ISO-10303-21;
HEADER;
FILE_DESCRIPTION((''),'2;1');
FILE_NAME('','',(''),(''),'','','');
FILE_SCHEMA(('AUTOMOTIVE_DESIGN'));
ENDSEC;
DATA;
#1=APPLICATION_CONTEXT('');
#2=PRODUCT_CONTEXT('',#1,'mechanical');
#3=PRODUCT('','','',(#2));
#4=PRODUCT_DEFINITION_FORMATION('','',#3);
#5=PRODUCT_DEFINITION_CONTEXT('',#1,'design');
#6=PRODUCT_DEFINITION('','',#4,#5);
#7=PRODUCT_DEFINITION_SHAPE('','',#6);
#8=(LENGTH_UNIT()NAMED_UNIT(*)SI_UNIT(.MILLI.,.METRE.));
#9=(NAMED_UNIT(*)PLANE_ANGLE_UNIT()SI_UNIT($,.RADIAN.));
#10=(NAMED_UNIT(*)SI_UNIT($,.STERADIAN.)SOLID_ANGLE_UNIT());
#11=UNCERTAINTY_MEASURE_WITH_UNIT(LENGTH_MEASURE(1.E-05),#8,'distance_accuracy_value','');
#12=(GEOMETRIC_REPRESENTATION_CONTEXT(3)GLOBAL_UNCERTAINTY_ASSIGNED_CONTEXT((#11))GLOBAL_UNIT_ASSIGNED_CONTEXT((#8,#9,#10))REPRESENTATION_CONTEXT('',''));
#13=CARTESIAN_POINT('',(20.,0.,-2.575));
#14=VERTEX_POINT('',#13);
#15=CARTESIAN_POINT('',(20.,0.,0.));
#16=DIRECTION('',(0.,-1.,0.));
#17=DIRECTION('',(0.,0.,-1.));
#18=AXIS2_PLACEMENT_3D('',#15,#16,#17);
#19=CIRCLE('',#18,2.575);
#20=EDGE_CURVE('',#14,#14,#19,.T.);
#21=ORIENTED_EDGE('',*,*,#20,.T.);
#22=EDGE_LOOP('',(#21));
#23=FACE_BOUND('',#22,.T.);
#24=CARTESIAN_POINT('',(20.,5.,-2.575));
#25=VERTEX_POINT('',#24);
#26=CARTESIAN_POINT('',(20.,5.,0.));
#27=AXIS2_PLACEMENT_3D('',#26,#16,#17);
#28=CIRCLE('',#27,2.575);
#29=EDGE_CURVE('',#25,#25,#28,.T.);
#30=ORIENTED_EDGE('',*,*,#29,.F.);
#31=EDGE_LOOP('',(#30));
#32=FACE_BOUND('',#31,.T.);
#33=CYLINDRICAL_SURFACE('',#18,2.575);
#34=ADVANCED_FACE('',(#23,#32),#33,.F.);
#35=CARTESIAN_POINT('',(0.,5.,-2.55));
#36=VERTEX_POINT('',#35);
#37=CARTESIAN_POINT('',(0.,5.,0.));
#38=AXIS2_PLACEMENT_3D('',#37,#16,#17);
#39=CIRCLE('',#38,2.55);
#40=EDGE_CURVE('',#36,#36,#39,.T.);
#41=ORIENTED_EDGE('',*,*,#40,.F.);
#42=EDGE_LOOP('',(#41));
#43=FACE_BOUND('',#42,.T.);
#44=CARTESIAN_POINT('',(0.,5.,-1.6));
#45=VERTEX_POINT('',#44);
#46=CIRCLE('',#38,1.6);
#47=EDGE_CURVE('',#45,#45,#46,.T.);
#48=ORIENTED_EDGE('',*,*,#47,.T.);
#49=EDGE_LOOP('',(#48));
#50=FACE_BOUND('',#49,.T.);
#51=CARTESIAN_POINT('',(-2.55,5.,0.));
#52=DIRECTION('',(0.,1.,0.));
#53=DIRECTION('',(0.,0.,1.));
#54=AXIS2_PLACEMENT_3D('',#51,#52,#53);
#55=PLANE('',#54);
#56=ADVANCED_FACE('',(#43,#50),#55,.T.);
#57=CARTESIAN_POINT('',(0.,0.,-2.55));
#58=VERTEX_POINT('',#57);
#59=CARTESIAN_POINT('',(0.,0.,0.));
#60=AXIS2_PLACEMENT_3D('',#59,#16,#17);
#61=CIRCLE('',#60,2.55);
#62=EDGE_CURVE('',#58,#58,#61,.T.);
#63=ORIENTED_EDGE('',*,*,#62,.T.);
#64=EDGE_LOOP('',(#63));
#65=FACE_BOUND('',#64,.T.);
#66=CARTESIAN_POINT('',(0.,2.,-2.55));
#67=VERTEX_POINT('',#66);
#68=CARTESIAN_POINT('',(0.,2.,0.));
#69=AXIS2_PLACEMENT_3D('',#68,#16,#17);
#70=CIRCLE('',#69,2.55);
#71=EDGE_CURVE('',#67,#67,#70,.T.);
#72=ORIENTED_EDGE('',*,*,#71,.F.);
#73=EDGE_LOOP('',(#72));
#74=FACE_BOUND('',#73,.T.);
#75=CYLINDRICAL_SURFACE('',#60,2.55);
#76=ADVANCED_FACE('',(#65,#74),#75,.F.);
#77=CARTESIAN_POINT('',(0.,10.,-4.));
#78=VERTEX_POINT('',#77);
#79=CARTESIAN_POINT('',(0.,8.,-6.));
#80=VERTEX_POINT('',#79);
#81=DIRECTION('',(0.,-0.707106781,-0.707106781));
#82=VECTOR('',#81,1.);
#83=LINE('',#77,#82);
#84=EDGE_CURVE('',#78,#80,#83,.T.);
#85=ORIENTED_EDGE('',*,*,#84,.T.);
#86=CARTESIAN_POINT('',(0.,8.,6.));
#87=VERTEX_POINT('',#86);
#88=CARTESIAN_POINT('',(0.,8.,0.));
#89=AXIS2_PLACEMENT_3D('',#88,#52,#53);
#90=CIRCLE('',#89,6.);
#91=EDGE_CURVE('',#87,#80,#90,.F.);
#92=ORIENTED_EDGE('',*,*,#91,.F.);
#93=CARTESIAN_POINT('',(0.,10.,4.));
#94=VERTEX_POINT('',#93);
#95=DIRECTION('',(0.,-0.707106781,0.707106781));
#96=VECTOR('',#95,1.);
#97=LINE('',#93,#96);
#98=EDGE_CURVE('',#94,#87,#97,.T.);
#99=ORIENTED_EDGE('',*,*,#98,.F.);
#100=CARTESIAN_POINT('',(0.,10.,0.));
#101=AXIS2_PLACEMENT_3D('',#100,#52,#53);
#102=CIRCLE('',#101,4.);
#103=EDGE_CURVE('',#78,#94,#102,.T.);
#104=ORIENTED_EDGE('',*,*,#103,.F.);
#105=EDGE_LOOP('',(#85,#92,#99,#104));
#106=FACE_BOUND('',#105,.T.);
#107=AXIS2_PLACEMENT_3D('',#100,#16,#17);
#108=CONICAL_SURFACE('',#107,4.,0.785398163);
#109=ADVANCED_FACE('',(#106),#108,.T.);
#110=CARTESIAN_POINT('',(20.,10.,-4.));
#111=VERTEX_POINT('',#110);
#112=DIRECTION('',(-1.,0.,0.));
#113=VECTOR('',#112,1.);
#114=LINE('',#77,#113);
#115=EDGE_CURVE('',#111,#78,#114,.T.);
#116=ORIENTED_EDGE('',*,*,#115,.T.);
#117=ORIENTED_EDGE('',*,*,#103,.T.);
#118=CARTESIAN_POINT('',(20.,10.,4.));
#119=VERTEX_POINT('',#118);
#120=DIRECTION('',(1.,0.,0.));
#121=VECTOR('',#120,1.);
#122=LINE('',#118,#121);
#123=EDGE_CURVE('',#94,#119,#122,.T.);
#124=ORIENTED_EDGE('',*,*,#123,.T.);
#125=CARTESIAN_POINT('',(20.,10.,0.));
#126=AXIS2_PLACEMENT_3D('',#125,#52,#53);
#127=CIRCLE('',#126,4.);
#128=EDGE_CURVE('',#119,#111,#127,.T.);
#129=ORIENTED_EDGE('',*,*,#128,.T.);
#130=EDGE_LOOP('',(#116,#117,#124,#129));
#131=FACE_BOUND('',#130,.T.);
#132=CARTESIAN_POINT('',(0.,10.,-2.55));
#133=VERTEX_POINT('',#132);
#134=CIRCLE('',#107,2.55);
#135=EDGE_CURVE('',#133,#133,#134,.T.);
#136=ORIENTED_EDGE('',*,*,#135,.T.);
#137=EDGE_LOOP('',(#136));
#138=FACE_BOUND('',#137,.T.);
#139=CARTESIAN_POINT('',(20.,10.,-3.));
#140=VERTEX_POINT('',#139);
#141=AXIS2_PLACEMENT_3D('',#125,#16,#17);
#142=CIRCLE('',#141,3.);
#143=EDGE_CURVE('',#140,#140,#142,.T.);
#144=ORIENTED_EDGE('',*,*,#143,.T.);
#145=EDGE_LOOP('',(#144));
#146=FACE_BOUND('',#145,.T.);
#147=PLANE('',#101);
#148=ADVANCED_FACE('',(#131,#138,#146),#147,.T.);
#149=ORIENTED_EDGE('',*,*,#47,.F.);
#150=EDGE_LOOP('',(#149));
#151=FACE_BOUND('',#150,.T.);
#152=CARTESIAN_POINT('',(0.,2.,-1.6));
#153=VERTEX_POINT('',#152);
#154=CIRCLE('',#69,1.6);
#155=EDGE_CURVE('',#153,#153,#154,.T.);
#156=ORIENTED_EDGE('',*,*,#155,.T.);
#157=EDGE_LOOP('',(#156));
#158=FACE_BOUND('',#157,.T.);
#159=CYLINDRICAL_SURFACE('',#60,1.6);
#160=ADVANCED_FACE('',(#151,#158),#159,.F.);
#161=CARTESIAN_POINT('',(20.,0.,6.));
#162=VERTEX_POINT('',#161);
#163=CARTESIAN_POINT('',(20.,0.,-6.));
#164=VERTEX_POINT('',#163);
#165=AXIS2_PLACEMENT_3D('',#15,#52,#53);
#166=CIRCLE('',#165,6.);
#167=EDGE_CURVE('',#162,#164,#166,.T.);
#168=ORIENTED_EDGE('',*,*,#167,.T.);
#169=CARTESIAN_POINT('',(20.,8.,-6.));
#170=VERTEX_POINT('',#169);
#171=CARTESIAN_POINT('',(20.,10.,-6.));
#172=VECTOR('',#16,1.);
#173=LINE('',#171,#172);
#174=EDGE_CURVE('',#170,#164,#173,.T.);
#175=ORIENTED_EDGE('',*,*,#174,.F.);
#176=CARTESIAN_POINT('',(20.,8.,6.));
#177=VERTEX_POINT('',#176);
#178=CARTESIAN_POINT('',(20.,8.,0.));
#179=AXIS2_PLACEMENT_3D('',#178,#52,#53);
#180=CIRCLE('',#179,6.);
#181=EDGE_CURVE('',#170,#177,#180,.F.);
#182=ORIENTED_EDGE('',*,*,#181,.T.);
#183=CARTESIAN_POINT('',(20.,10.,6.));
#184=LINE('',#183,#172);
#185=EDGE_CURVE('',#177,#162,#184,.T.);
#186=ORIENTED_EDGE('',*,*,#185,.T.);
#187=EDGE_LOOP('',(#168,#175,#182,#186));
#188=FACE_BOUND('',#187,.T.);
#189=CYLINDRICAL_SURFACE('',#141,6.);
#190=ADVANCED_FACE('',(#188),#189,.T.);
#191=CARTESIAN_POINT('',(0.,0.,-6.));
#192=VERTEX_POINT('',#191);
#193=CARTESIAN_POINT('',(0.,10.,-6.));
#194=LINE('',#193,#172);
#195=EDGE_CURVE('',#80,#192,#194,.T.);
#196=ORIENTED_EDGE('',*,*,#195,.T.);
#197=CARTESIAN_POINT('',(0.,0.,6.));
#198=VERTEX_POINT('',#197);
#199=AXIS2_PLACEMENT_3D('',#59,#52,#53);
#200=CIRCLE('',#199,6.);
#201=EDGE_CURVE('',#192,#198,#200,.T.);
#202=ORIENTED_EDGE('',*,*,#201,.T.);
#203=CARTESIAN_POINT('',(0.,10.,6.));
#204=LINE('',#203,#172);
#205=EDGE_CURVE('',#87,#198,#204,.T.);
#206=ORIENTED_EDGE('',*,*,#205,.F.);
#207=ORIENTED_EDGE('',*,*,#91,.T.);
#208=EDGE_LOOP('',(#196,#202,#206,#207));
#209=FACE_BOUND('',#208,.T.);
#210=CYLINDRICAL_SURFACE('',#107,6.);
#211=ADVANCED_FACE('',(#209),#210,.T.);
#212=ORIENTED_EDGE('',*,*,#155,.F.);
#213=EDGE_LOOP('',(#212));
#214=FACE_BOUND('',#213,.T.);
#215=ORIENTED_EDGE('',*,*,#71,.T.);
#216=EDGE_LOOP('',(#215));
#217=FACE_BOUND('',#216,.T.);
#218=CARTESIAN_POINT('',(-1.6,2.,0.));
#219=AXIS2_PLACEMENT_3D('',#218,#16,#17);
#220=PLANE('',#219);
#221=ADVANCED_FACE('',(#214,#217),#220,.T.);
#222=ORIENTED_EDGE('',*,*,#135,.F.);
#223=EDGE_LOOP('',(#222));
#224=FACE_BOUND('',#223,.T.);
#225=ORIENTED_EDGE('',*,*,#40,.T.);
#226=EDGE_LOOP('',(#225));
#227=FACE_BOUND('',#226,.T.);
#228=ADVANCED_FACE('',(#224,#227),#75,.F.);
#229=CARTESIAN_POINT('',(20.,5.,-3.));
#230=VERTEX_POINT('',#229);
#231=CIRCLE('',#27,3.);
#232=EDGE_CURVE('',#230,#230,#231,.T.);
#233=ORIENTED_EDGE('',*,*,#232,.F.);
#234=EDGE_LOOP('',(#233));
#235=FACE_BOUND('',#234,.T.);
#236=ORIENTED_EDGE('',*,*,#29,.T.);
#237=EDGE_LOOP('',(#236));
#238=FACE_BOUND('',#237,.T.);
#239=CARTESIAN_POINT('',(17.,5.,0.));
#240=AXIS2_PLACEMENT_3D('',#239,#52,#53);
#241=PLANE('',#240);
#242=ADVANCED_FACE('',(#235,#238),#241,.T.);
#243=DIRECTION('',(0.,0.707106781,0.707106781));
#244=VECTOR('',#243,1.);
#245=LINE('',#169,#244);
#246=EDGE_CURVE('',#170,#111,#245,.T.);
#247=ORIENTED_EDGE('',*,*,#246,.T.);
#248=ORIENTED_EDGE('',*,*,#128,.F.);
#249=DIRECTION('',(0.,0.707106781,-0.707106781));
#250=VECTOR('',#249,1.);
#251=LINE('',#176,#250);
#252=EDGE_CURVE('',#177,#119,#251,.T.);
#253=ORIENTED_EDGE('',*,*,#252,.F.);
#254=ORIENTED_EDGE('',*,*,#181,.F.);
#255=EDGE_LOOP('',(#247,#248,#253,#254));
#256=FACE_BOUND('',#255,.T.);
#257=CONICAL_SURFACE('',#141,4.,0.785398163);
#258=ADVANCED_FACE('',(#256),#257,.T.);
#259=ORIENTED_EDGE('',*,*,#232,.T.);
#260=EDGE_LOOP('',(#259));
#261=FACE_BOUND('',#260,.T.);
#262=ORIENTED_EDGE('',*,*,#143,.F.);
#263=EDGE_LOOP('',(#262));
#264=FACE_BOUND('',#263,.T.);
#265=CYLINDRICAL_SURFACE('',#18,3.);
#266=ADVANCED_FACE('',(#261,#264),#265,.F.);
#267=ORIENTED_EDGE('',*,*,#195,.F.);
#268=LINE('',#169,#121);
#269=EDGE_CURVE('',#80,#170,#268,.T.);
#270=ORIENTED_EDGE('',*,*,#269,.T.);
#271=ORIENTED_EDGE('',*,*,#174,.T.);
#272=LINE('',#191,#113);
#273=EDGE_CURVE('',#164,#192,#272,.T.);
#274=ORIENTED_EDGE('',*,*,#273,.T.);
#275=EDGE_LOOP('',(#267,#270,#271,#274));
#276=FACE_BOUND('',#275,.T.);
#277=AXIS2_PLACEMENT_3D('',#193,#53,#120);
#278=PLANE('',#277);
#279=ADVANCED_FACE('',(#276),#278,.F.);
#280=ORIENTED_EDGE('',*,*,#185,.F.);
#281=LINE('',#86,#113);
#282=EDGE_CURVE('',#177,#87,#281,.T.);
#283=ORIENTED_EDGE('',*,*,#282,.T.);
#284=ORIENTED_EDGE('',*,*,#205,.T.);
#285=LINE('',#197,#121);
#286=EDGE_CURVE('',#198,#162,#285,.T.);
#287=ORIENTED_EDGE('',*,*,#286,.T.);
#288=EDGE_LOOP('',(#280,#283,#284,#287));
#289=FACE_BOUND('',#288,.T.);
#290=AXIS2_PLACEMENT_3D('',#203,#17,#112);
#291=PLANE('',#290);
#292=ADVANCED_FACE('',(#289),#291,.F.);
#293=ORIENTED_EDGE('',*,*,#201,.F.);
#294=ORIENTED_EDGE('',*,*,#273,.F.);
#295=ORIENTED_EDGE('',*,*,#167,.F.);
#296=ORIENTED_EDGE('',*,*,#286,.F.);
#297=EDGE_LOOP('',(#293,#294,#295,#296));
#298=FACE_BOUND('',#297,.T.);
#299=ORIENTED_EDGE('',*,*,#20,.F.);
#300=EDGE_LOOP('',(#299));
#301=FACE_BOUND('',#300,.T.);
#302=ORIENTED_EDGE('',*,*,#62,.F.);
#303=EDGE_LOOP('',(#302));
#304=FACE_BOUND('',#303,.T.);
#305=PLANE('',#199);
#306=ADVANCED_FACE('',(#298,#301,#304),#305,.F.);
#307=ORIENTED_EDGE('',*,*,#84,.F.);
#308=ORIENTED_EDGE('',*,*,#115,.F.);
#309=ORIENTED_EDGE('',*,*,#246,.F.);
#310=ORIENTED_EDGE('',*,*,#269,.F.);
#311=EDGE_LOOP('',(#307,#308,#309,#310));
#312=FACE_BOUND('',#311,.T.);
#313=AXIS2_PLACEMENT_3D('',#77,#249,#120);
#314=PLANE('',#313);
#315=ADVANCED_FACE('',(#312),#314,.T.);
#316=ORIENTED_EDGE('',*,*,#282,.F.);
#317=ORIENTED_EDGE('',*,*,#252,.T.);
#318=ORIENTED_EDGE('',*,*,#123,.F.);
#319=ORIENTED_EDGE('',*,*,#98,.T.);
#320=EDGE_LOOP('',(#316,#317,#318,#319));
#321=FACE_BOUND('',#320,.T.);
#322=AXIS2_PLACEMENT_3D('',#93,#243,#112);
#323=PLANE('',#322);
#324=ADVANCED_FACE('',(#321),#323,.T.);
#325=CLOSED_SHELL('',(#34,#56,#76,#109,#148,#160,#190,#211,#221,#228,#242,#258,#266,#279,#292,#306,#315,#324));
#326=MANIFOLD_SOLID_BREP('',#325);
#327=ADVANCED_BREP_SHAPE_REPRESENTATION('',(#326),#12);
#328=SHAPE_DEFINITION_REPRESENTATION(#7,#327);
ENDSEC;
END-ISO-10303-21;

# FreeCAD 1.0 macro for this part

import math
import FreeCAD as App
import Part
import Sketcher


def edges_at(feature, points):
    """Names of the edges that pass closest to the given points."""
    edges = feature.Shape.Edges
    near = lambda p: min(range(len(edges)), key=lambda i: edges[i].distToShape(Part.Vertex(*p))[0])
    return sorted({f"Edge{near(p) + 1}" for p in points})


def add_polygon(sketch, points):
    """Adds a closed chain of lines whose ends are joined by coincident constraints."""
    first, n = sketch.GeometryCount, len(points)
    for a, b in zip(points, points[1:] + points[:1]):
        sketch.addGeometry(Part.LineSegment(App.Vector(*a, 0), App.Vector(*b, 0)), False)
    for i in range(n):
        sketch.addConstraint(Sketcher.Constraint("Coincident", first + i, 2, first + (i + 1) % n, 1))

doc = App.newDocument("Part")
body = doc.addObject("PartDesign::Body", "Body")

# Sketch on XZ plane
sketch1 = body.newObject("Sketcher::SketchObject", "Sketch")
sketch1.AttachmentSupport = (doc.getObject("XZ_Plane"), [""])
sketch1.MapMode = "FlatFace"
sketch1.addGeometry([
    Part.LineSegment(App.Vector(20, -6, 0), App.Vector(0, -6, 0)),
    Part.ArcOfCircle(Part.Circle(App.Vector(0, 0, 0), App.Vector(0, 0, 1), 6), math.radians(90), math.radians(270)),
    Part.LineSegment(App.Vector(0, 6, 0), App.Vector(20, 6, 0)),
    Part.ArcOfCircle(Part.Circle(App.Vector(20, 0, 0), App.Vector(0, 0, 1), 6), math.radians(-90), math.radians(90)),
], False)
sketch1.addConstraint([
    Sketcher.Constraint("Tangent", 0, 2, 1, 2),
    Sketcher.Constraint("Tangent", 1, 1, 2, 1),
    Sketcher.Constraint("Tangent", 2, 2, 3, 2),
    Sketcher.Constraint("Tangent", 3, 1, 0, 1),
    Sketcher.Constraint("Horizontal", 0),
    Sketcher.Constraint("Horizontal", 2),
    Sketcher.Constraint("Coincident", 1, 3, -1, 1),
    Sketcher.Constraint("Radius", 1, 6.0),
    Sketcher.Constraint("DistanceX", 0, 2, 0, 1, 20.0),
])
pad1 = body.newObject("PartDesign::Pad", "Pad")
pad1.Profile = sketch1
pad1.Length = 10
pad1.Reversed = True

# Sketch on XY plane
sketch2 = body.newObject("Sketcher::SketchObject", "Sketch001")
sketch2.AttachmentSupport = (doc.getObject("XY_Plane"), [""])
sketch2.MapMode = "FlatFace"
add_polygon(sketch2, [(0, 10), (-2.5, 10), (-2.5, 5), (-1.6, 5), (-1.6, 2), (-2.5, 2), (-2.5, 0), (0, 0)])  # lines 0-7
sketch2.addConstraint([
    Sketcher.Constraint("Horizontal", 0),
    Sketcher.Constraint("Vertical", 1),
    Sketcher.Constraint("Horizontal", 2),
    Sketcher.Constraint("Vertical", 3),
    Sketcher.Constraint("Horizontal", 4),
    Sketcher.Constraint("Vertical", 5),
    Sketcher.Constraint("Horizontal", 6),
    Sketcher.Constraint("Vertical", 7),
    Sketcher.Constraint("Coincident", 6, 2, -1, 1),
    Sketcher.Constraint("Vertical", 1, 2, 4, 2),
    Sketcher.Constraint("DistanceY", 1, 2, 1, 1, 5.0),
    Sketcher.Constraint("DistanceY", 3, 2, 3, 1, 3.0),
    Sketcher.Constraint("DistanceY", 5, 2, 5, 1, 2.0),
    Sketcher.Constraint("DistanceX", 0, 2, 0, 1, 2.55),
    Sketcher.Constraint("DistanceX", 2, 1, 2, 2, 0.95),
])
groove = body.newObject("PartDesign::Groove", "Groove")
groove.Profile = sketch2
groove.ReferenceAxis = (sketch2, ["V_Axis"])
groove.Angle = 360

# Sketch on XY plane
sketch3 = body.newObject("Sketcher::SketchObject", "Sketch002")
sketch3.AttachmentSupport = (doc.getObject("XY_Plane"), [""])
sketch3.MapMode = "FlatFace"
add_polygon(sketch3, [(20, 10), (17, 10), (17, 5), (17.43, 5), (17.43, 0), (20, 0)])  # lines 0-5
sketch3.addGeometry(Part.LineSegment(App.Vector(20, 0, 0), App.Vector(20, 10, 0)), True)  # axis
sketch3.addConstraint([
    Sketcher.Constraint("Horizontal", 0),
    Sketcher.Constraint("Vertical", 1),
    Sketcher.Constraint("Horizontal", 2),
    Sketcher.Constraint("Vertical", 3),
    Sketcher.Constraint("Horizontal", 4),
    Sketcher.Constraint("Vertical", 5),
    Sketcher.Constraint("Vertical", 6),
    Sketcher.Constraint("Coincident", 6, 1, 4, 2),
    Sketcher.Constraint("PointOnObject", 3, 2, -1),
    Sketcher.Constraint("Horizontal", 0, 2, 6, 2),
    Sketcher.Constraint("Equal", 1, 3),
    Sketcher.Constraint("DistanceX", 0, 2, 0, 1, 3.0),
    Sketcher.Constraint("DistanceY", 1, 2, 1, 1, 5.0),
    Sketcher.Constraint("DistanceX", -1, 1, 0, 2, 17.0),
    Sketcher.Constraint("DistanceX", 2, 1, 2, 2, 0.425),
])
groove2 = body.newObject("PartDesign::Groove", "Groove001")
groove2.Profile = sketch3
groove2.ReferenceAxis = (sketch3, ["Axis0"])
groove2.Angle = 360
doc.recompute()

chamfer = body.newObject("PartDesign::Chamfer", "Chamfer")
chamfer.Base = (groove2, edges_at(groove2, [
    (26, 10, 0),
    (10, 10, -6),
    (-6, 10, 0),
    (10, 10, 6),
]))
chamfer.Size = 2

doc.recompute()
